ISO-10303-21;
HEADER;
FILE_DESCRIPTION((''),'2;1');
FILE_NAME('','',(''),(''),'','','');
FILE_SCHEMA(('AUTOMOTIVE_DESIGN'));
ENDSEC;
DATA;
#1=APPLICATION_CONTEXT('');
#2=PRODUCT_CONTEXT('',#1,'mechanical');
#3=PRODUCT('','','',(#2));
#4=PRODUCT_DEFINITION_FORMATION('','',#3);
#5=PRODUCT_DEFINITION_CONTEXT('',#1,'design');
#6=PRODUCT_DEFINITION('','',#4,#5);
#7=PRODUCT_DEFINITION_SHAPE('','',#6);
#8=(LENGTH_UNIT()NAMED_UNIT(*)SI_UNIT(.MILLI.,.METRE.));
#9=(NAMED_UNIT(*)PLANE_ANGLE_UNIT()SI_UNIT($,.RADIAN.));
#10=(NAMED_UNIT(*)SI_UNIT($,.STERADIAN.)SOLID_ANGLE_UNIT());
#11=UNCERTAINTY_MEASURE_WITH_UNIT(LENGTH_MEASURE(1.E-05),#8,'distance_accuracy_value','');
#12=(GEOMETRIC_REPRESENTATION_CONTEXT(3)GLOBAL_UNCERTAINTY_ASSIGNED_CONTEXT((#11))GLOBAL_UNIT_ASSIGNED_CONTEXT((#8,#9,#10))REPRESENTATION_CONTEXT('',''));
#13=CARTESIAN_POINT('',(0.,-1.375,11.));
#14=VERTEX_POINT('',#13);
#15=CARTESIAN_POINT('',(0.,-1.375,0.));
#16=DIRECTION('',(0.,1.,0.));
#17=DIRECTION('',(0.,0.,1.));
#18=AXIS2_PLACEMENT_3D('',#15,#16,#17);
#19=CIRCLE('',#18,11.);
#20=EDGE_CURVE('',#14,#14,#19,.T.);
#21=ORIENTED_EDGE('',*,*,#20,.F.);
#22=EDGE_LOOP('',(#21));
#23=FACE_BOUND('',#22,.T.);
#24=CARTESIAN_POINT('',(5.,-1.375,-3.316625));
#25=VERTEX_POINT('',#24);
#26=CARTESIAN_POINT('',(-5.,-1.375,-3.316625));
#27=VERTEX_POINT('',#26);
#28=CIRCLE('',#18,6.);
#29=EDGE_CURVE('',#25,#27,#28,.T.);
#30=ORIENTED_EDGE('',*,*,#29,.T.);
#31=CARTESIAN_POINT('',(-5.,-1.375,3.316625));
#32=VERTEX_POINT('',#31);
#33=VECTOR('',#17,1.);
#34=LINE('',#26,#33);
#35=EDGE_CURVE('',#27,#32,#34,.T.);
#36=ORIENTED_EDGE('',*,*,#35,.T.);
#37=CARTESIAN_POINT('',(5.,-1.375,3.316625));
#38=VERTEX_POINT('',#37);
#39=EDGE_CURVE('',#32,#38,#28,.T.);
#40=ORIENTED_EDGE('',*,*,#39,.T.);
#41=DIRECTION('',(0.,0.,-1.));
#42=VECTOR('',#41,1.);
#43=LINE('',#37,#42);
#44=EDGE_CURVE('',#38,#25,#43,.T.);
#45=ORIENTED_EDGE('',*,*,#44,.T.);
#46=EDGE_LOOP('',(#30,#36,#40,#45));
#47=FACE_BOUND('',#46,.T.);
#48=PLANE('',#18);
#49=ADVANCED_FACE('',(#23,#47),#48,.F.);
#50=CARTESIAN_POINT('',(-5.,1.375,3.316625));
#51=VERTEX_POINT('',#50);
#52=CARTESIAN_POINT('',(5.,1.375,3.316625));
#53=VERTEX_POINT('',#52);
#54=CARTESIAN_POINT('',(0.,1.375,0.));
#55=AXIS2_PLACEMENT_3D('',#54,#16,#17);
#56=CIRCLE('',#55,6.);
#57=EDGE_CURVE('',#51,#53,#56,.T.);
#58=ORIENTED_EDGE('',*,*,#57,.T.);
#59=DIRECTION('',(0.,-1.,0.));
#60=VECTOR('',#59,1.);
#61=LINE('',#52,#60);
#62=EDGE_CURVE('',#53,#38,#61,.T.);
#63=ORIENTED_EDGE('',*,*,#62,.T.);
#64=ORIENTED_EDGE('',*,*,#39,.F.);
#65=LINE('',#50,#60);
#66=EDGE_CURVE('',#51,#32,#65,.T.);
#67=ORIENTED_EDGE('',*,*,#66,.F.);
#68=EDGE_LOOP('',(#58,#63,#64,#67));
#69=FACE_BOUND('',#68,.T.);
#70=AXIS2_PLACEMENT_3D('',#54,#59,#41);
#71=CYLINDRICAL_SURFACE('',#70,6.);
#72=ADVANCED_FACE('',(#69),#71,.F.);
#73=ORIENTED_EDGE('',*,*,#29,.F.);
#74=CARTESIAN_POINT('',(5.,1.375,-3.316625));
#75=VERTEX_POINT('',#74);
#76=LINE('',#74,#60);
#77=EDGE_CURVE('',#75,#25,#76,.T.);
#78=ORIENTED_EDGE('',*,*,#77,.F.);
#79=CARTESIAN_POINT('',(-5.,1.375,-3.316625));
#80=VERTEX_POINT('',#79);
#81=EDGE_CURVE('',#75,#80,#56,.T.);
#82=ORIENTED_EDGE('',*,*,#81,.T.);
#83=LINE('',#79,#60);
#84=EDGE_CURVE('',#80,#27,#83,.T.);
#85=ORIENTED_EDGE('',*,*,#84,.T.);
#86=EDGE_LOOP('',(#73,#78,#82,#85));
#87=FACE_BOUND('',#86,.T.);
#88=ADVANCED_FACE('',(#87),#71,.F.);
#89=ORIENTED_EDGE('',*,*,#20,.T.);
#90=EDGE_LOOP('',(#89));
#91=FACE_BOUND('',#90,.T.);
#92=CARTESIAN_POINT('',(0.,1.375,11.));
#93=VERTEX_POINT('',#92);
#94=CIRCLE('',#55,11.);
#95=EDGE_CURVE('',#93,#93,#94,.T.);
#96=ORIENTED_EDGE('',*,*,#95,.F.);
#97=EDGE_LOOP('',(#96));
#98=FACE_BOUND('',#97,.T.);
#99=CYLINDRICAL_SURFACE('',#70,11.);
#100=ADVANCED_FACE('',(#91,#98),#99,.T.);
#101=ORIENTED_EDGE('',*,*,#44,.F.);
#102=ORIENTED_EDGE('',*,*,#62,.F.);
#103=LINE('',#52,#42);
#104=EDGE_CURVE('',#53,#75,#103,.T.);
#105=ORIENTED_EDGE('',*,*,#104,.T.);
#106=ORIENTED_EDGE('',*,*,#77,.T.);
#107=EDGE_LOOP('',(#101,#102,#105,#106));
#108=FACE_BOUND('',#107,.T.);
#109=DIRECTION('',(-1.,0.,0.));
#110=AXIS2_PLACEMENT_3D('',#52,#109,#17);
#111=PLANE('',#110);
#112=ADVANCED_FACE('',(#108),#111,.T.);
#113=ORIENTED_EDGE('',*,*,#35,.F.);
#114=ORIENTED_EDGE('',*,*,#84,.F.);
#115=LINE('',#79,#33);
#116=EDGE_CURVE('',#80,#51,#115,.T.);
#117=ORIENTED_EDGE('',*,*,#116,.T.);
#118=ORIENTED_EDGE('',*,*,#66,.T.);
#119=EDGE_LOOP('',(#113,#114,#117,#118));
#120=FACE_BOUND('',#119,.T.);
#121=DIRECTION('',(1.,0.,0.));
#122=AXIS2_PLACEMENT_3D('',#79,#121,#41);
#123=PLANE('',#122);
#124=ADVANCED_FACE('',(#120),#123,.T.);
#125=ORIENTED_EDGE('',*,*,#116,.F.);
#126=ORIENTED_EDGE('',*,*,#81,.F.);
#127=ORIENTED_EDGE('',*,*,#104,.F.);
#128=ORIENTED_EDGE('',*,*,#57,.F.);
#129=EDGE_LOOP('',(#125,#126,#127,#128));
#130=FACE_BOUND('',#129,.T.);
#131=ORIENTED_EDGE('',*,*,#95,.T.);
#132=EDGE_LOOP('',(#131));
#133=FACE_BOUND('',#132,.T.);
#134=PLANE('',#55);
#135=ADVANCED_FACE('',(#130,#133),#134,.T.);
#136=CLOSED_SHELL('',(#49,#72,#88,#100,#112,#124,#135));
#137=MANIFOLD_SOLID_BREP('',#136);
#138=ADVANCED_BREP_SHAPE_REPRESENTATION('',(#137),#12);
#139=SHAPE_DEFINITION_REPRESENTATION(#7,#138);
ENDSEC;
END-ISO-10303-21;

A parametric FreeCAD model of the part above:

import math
import FreeCAD as App
import Part
import Sketcher

doc = App.newDocument("Part")
params = doc.addObject("Spreadsheet::Sheet", "Params")
for row, (alias, value) in enumerate([
    ("sketch1_diameter", "22 mm"),
    ("sketch1_radius", "6 mm"),
    ("pad1_length", "2.75 mm"),
], start=1):
    params.set(f"A{row}", alias)
    params.set(f"B{row}", "=" + value)
    params.setAlias(f"B{row}", alias)

body = doc.addObject("PartDesign::Body", "Body")

# Sketch on XZ plane
sketch1 = body.newObject("Sketcher::SketchObject", "Sketch")
sketch1.AttachmentSupport = (doc.getObject("XZ_Plane"), [""])
sketch1.MapMode = "FlatFace"
sketch1.addGeometry(Part.Circle(App.Vector(0, 0, 0), App.Vector(0, 0, 1), 11), False)
sketch1.addGeometry(Part.LineSegment(App.Vector(-5, 3.316625, 0), App.Vector(-5, -3.316625, 0)), False)
sketch1.addGeometry(Part.ArcOfCircle(Part.Circle(App.Vector(0, 0, 0), App.Vector(0, 0, 1), 6), math.radians(-146.44269), math.radians(-33.55731)), False)
sketch1.addGeometry(Part.LineSegment(App.Vector(5, -3.316625, 0), App.Vector(5, 3.316625, 0)), False)
sketch1.addGeometry(Part.ArcOfCircle(Part.Circle(App.Vector(0, 0, 0), App.Vector(0, 0, 1), 6), math.radians(33.55731), math.radians(146.44269)), False)
sketch1.addConstraint(Sketcher.Constraint("Coincident", 1, 2, 2, 1))
sketch1.addConstraint(Sketcher.Constraint("Coincident", 2, 2, 3, 1))
sketch1.addConstraint(Sketcher.Constraint("Coincident", 3, 2, 4, 1))
sketch1.addConstraint(Sketcher.Constraint("Coincident", 4, 2, 1, 1))
sketch1.addConstraint(Sketcher.Constraint("Vertical", 1))
sketch1.addConstraint(Sketcher.Constraint("Vertical", 3))
sketch1.addConstraint(Sketcher.Constraint("Coincident", 0, 3, -1, 1))
sketch1.addConstraint(Sketcher.Constraint("Coincident", 2, 3, -1, 1))
sketch1.addConstraint(Sketcher.Constraint("Coincident", 4, 3, -1, 1))
sketch1.addConstraint(Sketcher.Constraint("Equal", 2, 4))
sketch1.addConstraint(Sketcher.Constraint("Horizontal", 1, 2, 2, 2))
sketch1.addConstraint(Sketcher.Constraint("Diameter", 0, 22.0))
sketch1.addConstraint(Sketcher.Constraint("Radius", 2, 6.0))
sketch1.addConstraint(Sketcher.Constraint("DistanceX", 1, 2, -1, 1, 5.0))
sketch1.setExpression("Constraints[11]", "Params.sketch1_diameter")
sketch1.setExpression("Constraints[12]", "Params.sketch1_radius")
pad1 = body.newObject("PartDesign::Pad", "Pad")
pad1.Profile = sketch1
pad1.setExpression("Length", "Params.pad1_length")
pad1.Midplane = True

doc.recompute()
